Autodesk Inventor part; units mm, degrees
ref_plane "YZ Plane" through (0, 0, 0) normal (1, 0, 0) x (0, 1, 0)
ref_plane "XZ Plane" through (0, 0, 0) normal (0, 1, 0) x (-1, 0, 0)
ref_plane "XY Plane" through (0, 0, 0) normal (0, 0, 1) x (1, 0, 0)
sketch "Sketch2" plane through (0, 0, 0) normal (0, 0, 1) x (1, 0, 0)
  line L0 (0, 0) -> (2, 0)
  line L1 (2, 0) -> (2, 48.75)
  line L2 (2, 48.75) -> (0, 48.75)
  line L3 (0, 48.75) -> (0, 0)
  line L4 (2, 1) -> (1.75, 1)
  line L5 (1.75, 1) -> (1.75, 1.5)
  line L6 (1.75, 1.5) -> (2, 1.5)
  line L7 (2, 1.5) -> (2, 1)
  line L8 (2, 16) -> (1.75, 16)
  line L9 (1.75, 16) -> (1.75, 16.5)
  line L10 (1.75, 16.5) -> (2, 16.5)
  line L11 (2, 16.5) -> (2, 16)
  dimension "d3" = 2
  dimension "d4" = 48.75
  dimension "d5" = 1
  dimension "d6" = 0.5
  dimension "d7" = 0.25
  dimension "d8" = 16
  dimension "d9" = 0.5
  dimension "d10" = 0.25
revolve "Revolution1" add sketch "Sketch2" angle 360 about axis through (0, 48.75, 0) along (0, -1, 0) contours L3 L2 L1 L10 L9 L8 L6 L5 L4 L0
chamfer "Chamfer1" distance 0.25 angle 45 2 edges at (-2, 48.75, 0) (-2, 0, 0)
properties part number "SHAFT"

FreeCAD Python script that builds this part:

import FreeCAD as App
import Part
import Sketcher


def edges_at(feature, points):
    """Names of the edges that pass closest to the given points."""
    edges = feature.Shape.Edges
    near = lambda p: min(range(len(edges)), key=lambda i: edges[i].distToShape(Part.Vertex(*p))[0])
    return sorted({f"Edge{near(p) + 1}" for p in points})

doc = App.newDocument("Part")
body = doc.addObject("PartDesign::Body", "Body")

sketch1 = doc.addObject("Sketcher::SketchObject", "Sketch")
body.addObject(sketch1)
sketch1.AttachmentSupport = (doc.XY_Plane, [""])
sketch1.MapMode = "FlatFace"
sketch1.addGeometry(Part.LineSegment(App.Vector(0, 48.75, 0), App.Vector(0, 0, 0)), False)
sketch1.addGeometry(Part.LineSegment(App.Vector(0, 0, 0), App.Vector(2, 0, 0)), False)
sketch1.addGeometry(Part.LineSegment(App.Vector(2, 0, 0), App.Vector(2, 1, 0)), False)
sketch1.addGeometry(Part.LineSegment(App.Vector(2, 1, 0), App.Vector(1.75, 1, 0)), False)
sketch1.addGeometry(Part.LineSegment(App.Vector(1.75, 1, 0), App.Vector(1.75, 1.5, 0)), False)
sketch1.addGeometry(Part.LineSegment(App.Vector(1.75, 1.5, 0), App.Vector(2, 1.5, 0)), False)
sketch1.addGeometry(Part.LineSegment(App.Vector(2, 1.5, 0), App.Vector(2, 16, 0)), False)
sketch1.addGeometry(Part.LineSegment(App.Vector(2, 16, 0), App.Vector(1.75, 16, 0)), False)
sketch1.addGeometry(Part.LineSegment(App.Vector(1.75, 16, 0), App.Vector(1.75, 16.5, 0)), False)
sketch1.addGeometry(Part.LineSegment(App.Vector(1.75, 16.5, 0), App.Vector(2, 16.5, 0)), False)
sketch1.addGeometry(Part.LineSegment(App.Vector(2, 16.5, 0), App.Vector(2, 48.75, 0)), False)
sketch1.addGeometry(Part.LineSegment(App.Vector(2, 48.75, 0), App.Vector(0, 48.75, 0)), False)
sketch1.addConstraint(Sketcher.Constraint("Coincident", 0, 2, 1, 1))
sketch1.addConstraint(Sketcher.Constraint("Coincident", 1, 2, 2, 1))
sketch1.addConstraint(Sketcher.Constraint("Coincident", 2, 2, 3, 1))
sketch1.addConstraint(Sketcher.Constraint("Coincident", 3, 2, 4, 1))
sketch1.addConstraint(Sketcher.Constraint("Coincident", 4, 2, 5, 1))
sketch1.addConstraint(Sketcher.Constraint("Coincident", 5, 2, 6, 1))
sketch1.addConstraint(Sketcher.Constraint("Coincident", 6, 2, 7, 1))
sketch1.addConstraint(Sketcher.Constraint("Coincident", 7, 2, 8, 1))
sketch1.addConstraint(Sketcher.Constraint("Coincident", 8, 2, 9, 1))
sketch1.addConstraint(Sketcher.Constraint("Coincident", 9, 2, 10, 1))
sketch1.addConstraint(Sketcher.Constraint("Coincident", 10, 2, 11, 1))
sketch1.addConstraint(Sketcher.Constraint("Coincident", 11, 2, 0, 1))
sketch1.addConstraint(Sketcher.Constraint("Vertical", 0))
sketch1.addConstraint(Sketcher.Constraint("Horizontal", 1))
sketch1.addConstraint(Sketcher.Constraint("Vertical", 2))
sketch1.addConstraint(Sketcher.Constraint("Horizontal", 3))
sketch1.addConstraint(Sketcher.Constraint("Vertical", 4))
sketch1.addConstraint(Sketcher.Constraint("Horizontal", 5))
sketch1.addConstraint(Sketcher.Constraint("Vertical", 6))
sketch1.addConstraint(Sketcher.Constraint("Horizontal", 7))
sketch1.addConstraint(Sketcher.Constraint("Vertical", 8))
sketch1.addConstraint(Sketcher.Constraint("Horizontal", 9))
sketch1.addConstraint(Sketcher.Constraint("Vertical", 10))
sketch1.addConstraint(Sketcher.Constraint("Horizontal", 11))
sketch1.addConstraint(Sketcher.Constraint("Coincident", 0, 2, -1, 1))
sketch1.addConstraint(Sketcher.Constraint("Vertical", 2, 2, 5, 2))
sketch1.addConstraint(Sketcher.Constraint("Vertical", 4, 2, 7, 2))
sketch1.addConstraint(Sketcher.Constraint("Vertical", 6, 2, 9, 2))
sketch1.addConstraint(Sketcher.Constraint("Equal", 4, 8))
sketch1.addConstraint(Sketcher.Constraint("DistanceX", 1, 1, 1, 2, 2.0))
sketch1.addConstraint(Sketcher.Constraint("DistanceY", 2, 1, 2, 2, 1.0))
sketch1.addConstraint(Sketcher.Constraint("DistanceY", 4, 1, 4, 2, 0.5))
sketch1.addConstraint(Sketcher.Constraint("DistanceY", -1, 1, 6, 2, 16.0))
sketch1.addConstraint(Sketcher.Constraint("DistanceX", 3, 2, 3, 1, 0.25))
sketch1.addConstraint(Sketcher.Constraint("DistanceY", 0, 2, 0, 1, 48.75))
revolution = doc.addObject("PartDesign::Revolution", "Revolution")
body.addObject(revolution)
revolution.Profile = sketch1
revolution.ReferenceAxis = (sketch1, ["V_Axis"])
revolution.Angle = 360
doc.recompute()

chamfer = doc.addObject("PartDesign::Chamfer", "Chamfer")
body.addObject(chamfer)
chamfer.Base = (revolution, edges_at(revolution, [(-2, 48.75, 0), (-2, 0, 0)]))
chamfer.Size = 0.25

doc.recompute()
